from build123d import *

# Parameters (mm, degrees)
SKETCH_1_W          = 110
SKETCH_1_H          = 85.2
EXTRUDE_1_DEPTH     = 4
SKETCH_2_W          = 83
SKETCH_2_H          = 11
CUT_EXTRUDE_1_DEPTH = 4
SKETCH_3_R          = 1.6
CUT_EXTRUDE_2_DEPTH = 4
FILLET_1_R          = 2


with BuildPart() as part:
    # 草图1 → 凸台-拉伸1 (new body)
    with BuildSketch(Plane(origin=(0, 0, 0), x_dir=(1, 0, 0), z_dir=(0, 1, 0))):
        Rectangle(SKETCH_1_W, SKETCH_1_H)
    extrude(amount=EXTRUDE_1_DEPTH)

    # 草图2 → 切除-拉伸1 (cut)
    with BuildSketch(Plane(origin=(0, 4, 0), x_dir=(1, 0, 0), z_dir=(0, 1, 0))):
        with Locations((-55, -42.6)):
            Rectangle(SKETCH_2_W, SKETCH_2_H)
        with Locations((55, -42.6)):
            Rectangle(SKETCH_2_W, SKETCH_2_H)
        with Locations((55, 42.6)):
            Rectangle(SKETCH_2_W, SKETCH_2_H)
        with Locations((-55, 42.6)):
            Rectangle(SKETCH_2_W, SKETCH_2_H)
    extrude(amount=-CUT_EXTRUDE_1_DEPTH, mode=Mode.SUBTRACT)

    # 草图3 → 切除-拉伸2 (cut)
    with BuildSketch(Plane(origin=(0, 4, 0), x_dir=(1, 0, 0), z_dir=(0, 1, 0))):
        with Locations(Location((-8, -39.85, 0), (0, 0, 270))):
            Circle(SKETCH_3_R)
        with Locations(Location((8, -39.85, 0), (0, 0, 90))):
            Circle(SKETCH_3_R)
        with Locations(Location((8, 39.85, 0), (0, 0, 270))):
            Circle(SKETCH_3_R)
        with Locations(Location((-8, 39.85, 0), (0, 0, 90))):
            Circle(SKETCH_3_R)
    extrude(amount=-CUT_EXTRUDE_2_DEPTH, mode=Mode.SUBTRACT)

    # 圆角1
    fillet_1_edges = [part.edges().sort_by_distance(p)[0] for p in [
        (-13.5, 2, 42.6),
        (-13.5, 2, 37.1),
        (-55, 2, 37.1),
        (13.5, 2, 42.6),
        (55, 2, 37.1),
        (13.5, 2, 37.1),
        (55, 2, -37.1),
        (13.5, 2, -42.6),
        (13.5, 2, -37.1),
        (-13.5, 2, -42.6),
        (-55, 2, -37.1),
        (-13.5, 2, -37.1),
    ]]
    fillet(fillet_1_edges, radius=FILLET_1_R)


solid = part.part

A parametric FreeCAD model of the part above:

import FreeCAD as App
import Part
import Sketcher


def edges_at(feature, points):
    """Names of the edges that pass closest to the given points."""
    edges = feature.Shape.Edges
    near = lambda p: min(range(len(edges)), key=lambda i: edges[i].distToShape(Part.Vertex(*p))[0])
    return sorted({f"Edge{near(p) + 1}" for p in points})


def add_polygon(sketch, points):
    """Adds a closed chain of lines whose ends are joined by coincident constraints."""
    first, n = sketch.GeometryCount, len(points)
    for a, b in zip(points, points[1:] + points[:1]):
        sketch.addGeometry(Part.LineSegment(App.Vector(*a, 0), App.Vector(*b, 0)), False)
    for i in range(n):
        sketch.addConstraint(Sketcher.Constraint("Coincident", first + i, 2, first + (i + 1) % n, 1))

doc = App.newDocument("Part")
body = doc.addObject("PartDesign::Body", "Body")

# Sketch on XZ plane
sketch1 = doc.addObject("Sketcher::SketchObject", "Sketch")
body.addObject(sketch1)
sketch1.AttachmentSupport = (doc.XZ_Plane, [""])
sketch1.MapMode = "FlatFace"
add_polygon(sketch1, [(-55, -42.6), (-55, 42.6), (55, 42.6), (55, -42.6)])  # lines 0-3
sketch1.addConstraint(Sketcher.Constraint("Vertical", 0))
sketch1.addConstraint(Sketcher.Constraint("Horizontal", 1))
sketch1.addConstraint(Sketcher.Constraint("Vertical", 2))
sketch1.addConstraint(Sketcher.Constraint("Horizontal", 3))
sketch1.addConstraint(Sketcher.Constraint("Symmetric", 0, 2, 2, 2, -1, 1))
sketch1.addConstraint(Sketcher.Constraint("DistanceX", 1, 1, 1, 2, 110.0))
sketch1.addConstraint(Sketcher.Constraint("DistanceY", 0, 1, 0, 2, 85.2))
pad1 = doc.addObject("PartDesign::Pad", "Pad")
body.addObject(pad1)
pad1.Profile = sketch1
pad1.Length = 4
pad1.Reversed = True

# Sketch on XZ plane
sketch2 = doc.addObject("Sketcher::SketchObject", "Sketch001")
body.addObject(sketch2)
sketch2.AttachmentSupport = (doc.XZ_Plane, [""])
sketch2.MapMode = "FlatFace"
sketch2.AttachmentOffset = App.Placement(App.Vector(0, 0, -4), App.Rotation())
add_polygon(sketch2, [(-96.5, 37.1), (-96.5, 48.1), (-13.5, 48.1), (-13.5, 37.1)])  # lines 0-3
add_polygon(sketch2, [(13.5, 37.1), (13.5, 48.1), (96.5, 48.1), (96.5, 37.1)])  # lines 4-7
add_polygon(sketch2, [(13.5, -48.1), (13.5, -37.1), (96.5, -37.1), (96.5, -48.1)])  # lines 8-11
add_polygon(sketch2, [(-96.5, -48.1), (-96.5, -37.1), (-13.5, -37.1), (-13.5, -48.1)])  # lines 12-15
sketch2.addConstraint(Sketcher.Constraint("Vertical", 0))
sketch2.addConstraint(Sketcher.Constraint("Horizontal", 1))
sketch2.addConstraint(Sketcher.Constraint("Vertical", 2))
sketch2.addConstraint(Sketcher.Constraint("Horizontal", 3))
sketch2.addConstraint(Sketcher.Constraint("Vertical", 4))
sketch2.addConstraint(Sketcher.Constraint("Horizontal", 5))
sketch2.addConstraint(Sketcher.Constraint("Vertical", 6))
sketch2.addConstraint(Sketcher.Constraint("Horizontal", 7))
sketch2.addConstraint(Sketcher.Constraint("Vertical", 8))
sketch2.addConstraint(Sketcher.Constraint("Horizontal", 9))
sketch2.addConstraint(Sketcher.Constraint("Vertical", 10))
sketch2.addConstraint(Sketcher.Constraint("Horizontal", 11))
sketch2.addConstraint(Sketcher.Constraint("Vertical", 12))
sketch2.addConstraint(Sketcher.Constraint("Horizontal", 13))
sketch2.addConstraint(Sketcher.Constraint("Vertical", 14))
sketch2.addConstraint(Sketcher.Constraint("Horizontal", 15))
sketch2.addConstraint(Sketcher.Constraint("Symmetric", 2, 2, 8, 2, -1, 1))
sketch2.addConstraint(Sketcher.Constraint("Symmetric", 0, 2, 10, 2, -1, 1))
sketch2.addConstraint(Sketcher.Constraint("Symmetric", 6, 2, 12, 2, -1, 1))
sketch2.addConstraint(Sketcher.Constraint("Symmetric", 4, 2, 14, 2, -1, 1))
sketch2.addConstraint(Sketcher.Constraint("Symmetric", 1, 2, 4, 2, -2))
sketch2.addConstraint(Sketcher.Constraint("Symmetric", 3, 2, 6, 2, -2))
sketch2.addConstraint(Sketcher.Constraint("DistanceX", 1, 1, 1, 2, 83.0))
sketch2.addConstraint(Sketcher.Constraint("DistanceY", 0, 1, 0, 2, 11.0))
sketch2.addConstraint(Sketcher.Constraint("DistanceX", 1, 2, 4, 2, 27.0))
sketch2.addConstraint(Sketcher.Constraint("DistanceY", -1, 1, 0, 2, 48.1))
pocket1 = doc.addObject("PartDesign::Pocket", "Pocket")
body.addObject(pocket1)
pocket1.Profile = sketch2
pocket1.Length = 4
pocket1.Reversed = True

# Sketch on XZ plane
sketch3 = doc.addObject("Sketcher::SketchObject", "Sketch002")
body.addObject(sketch3)
sketch3.AttachmentSupport = (doc.XZ_Plane, [""])
sketch3.MapMode = "FlatFace"
sketch3.AttachmentOffset = App.Placement(App.Vector(0, 0, -4), App.Rotation())
sketch3.addGeometry(Part.Circle(App.Vector(-8, 39.85, 0), App.Vector(0, 0, 1), 1.6), False)
sketch3.addGeometry(Part.Circle(App.Vector(8, 39.85, 0), App.Vector(0, 0, 1), 1.6), False)
sketch3.addGeometry(Part.Circle(App.Vector(8, -39.85, 0), App.Vector(0, 0, 1), 1.6), False)
sketch3.addGeometry(Part.Circle(App.Vector(-8, -39.85, 0), App.Vector(0, 0, 1), 1.6), False)
sketch3.addConstraint(Sketcher.Constraint("Equal", 0, 1))
sketch3.addConstraint(Sketcher.Constraint("Equal", 1, 2))
sketch3.addConstraint(Sketcher.Constraint("Equal", 2, 3))
sketch3.addConstraint(Sketcher.Constraint("Symmetric", 0, 3, 2, 3, -1, 1))
sketch3.addConstraint(Sketcher.Constraint("Symmetric", 1, 3, 3, 3, -1, 1))
sketch3.addConstraint(Sketcher.Constraint("Symmetric", 0, 3, 1, 3, -2))
sketch3.addConstraint(Sketcher.Constraint("Diameter", 0, 3.2))
sketch3.addConstraint(Sketcher.Constraint("DistanceX", 0, 3, -1, 1, 8.0))
sketch3.addConstraint(Sketcher.Constraint("DistanceY", 2, 3, 1, 3, 79.7))
pocket2 = doc.addObject("PartDesign::Pocket", "Pocket001")
body.addObject(pocket2)
pocket2.Profile = sketch3
pocket2.Length = 4
pocket2.Reversed = True
doc.recompute()

fillet = doc.addObject("PartDesign::Fillet", "Fillet")
body.addObject(fillet)
fillet.Base = (pocket2, edges_at(pocket2, [
    (-13.5, 2, 42.6),
    (-13.5, 2, 37.1),
    (-55, 2, 37.1),
    (13.5, 2, 42.6),
    (55, 2, 37.1),
    (13.5, 2, 37.1),
    (55, 2, -37.1),
    (13.5, 2, -42.6),
    (13.5, 2, -37.1),
    (-13.5, 2, -42.6),
    (-55, 2, -37.1),
    (-13.5, 2, -37.1),
]))
fillet.Radius = 2

doc.recompute()
